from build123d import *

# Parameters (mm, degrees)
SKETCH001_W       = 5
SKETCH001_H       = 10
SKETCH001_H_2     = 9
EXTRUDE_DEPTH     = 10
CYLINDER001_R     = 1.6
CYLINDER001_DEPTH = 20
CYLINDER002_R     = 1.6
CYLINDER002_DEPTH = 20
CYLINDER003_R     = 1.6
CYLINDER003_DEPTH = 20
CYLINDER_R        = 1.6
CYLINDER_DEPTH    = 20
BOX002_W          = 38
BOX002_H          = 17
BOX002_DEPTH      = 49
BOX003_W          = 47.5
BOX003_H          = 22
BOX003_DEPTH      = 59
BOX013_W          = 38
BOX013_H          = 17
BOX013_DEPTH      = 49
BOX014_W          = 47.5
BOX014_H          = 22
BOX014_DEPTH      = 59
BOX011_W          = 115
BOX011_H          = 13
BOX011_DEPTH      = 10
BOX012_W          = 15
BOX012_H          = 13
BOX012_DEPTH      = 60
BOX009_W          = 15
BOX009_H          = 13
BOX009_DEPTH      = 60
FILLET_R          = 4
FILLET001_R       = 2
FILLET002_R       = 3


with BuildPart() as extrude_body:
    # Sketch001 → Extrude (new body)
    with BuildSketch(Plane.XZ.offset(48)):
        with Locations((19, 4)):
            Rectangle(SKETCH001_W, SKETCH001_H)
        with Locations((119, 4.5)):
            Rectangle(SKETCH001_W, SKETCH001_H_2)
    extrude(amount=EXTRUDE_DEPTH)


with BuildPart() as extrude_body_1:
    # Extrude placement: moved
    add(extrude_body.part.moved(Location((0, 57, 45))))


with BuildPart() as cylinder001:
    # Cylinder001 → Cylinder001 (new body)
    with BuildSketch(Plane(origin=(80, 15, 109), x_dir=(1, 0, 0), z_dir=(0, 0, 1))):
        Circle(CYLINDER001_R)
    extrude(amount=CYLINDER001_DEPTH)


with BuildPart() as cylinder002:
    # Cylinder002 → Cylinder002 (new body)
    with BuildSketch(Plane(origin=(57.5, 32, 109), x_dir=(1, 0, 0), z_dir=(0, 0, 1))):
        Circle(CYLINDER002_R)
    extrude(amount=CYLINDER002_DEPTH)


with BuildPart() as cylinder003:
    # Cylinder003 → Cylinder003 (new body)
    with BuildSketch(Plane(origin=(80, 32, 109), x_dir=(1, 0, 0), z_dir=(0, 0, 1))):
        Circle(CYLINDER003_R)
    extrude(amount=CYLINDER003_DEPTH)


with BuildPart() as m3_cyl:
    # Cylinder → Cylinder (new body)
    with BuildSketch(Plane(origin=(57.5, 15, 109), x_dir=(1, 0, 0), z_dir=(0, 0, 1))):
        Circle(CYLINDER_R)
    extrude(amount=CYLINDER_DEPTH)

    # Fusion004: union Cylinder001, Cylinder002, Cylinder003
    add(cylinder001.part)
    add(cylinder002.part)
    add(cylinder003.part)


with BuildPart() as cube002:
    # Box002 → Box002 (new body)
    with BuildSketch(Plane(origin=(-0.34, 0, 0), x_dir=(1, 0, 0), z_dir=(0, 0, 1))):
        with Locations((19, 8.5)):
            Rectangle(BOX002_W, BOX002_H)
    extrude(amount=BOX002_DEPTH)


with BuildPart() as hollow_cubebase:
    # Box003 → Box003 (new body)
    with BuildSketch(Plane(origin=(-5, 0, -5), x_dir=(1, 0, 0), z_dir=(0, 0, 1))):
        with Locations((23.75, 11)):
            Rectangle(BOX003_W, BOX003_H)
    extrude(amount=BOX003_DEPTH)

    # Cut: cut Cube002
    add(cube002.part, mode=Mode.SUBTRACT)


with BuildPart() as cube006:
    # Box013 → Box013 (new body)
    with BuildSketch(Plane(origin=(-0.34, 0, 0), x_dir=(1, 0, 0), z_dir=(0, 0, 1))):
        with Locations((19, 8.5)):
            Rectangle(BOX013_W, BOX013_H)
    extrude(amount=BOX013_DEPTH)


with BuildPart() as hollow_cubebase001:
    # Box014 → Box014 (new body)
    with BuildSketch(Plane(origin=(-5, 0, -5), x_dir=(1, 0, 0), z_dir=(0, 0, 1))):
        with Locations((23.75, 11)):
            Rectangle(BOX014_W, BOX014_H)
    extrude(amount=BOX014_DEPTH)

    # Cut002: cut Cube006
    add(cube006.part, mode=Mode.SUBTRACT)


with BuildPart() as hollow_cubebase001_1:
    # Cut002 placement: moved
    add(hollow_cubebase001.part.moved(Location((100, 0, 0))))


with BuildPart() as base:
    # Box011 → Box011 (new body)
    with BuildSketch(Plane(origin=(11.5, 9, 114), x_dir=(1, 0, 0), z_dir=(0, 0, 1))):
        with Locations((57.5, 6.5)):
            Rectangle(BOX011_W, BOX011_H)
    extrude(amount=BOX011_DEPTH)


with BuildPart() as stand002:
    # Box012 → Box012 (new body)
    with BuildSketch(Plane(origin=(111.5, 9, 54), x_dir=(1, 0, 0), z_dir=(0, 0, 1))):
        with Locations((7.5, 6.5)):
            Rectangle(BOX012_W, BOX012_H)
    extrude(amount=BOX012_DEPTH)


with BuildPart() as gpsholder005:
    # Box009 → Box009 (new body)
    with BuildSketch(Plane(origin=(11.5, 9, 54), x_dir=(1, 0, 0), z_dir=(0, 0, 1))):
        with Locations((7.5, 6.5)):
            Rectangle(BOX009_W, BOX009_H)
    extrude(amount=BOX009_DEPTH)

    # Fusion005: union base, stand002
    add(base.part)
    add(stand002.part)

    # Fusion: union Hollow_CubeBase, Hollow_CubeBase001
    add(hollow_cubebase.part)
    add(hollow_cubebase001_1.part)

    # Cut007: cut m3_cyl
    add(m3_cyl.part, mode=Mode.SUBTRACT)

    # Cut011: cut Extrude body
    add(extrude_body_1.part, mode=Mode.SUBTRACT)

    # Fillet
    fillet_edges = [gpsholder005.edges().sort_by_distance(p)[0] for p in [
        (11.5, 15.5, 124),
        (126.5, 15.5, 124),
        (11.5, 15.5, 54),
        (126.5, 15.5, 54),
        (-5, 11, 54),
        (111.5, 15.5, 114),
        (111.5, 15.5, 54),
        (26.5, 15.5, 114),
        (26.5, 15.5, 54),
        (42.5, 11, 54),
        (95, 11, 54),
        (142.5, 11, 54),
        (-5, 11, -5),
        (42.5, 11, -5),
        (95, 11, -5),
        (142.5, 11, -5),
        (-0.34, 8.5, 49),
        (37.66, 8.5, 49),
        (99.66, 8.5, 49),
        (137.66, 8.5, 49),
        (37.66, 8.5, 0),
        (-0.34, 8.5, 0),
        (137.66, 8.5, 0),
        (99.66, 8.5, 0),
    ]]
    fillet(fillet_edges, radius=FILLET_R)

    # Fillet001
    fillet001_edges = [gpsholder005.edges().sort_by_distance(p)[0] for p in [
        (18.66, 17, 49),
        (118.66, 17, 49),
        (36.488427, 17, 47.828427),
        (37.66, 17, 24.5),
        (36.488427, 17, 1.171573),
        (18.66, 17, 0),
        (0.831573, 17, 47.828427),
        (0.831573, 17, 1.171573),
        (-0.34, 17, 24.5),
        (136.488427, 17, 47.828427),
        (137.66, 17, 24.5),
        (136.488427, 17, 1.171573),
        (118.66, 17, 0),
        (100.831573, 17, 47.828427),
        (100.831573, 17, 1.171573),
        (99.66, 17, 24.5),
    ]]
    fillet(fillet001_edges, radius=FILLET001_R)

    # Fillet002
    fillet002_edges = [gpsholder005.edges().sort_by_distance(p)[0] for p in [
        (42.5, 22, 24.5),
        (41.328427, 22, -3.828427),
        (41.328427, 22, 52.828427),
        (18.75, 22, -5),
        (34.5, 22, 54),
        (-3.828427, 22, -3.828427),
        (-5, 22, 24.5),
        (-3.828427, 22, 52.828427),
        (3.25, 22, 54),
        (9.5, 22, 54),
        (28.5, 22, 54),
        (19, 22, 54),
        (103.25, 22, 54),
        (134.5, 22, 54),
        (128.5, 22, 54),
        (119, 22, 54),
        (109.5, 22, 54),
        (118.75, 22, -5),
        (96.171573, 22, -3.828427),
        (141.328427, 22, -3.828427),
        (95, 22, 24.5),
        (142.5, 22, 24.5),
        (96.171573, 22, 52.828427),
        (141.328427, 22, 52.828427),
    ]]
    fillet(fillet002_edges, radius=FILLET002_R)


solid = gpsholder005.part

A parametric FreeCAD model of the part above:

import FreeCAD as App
import Part
import Sketcher
from FreeCAD import Vector
Q = App.Units.Quantity


def edges_at(feature, points):
    """Names of the edges that pass closest to the given points."""
    edges = feature.Shape.Edges
    near = lambda p: min(range(len(edges)), key=lambda i: edges[i].distToShape(Part.Vertex(*p))[0])
    return sorted({f"Edge{near(p) + 1}" for p in points})

doc = App.newDocument("Part")
body = doc.addObject("PartDesign::Body", "Body")
body.AllowCompound = True

sketch1 = body.newObject("Sketcher::SketchObject", "Sketch")
sketch1.AttachmentSupport = (doc.getObject("XZ_Plane"), [""])
sketch1.MapMode = "FlatFace"
sketch1.AttachmentOffset = App.Placement(Vector(0, 0, 48), App.Rotation())
sketch1.addGeometry([
    Part.LineSegment(Vector(16.5, 9, 0), Vector(16.5, -1, 0)),
    Part.LineSegment(Vector(16.5, -1, 0), Vector(21.5, -1, 0)),
    Part.LineSegment(Vector(21.5, -1, 0), Vector(21.5, 9, 0)),
    Part.LineSegment(Vector(21.5, 9, 0), Vector(16.5, 9, 0)),
    Part.LineSegment(Vector(116.5, 9, 0), Vector(116.5, 0, 0)),
    Part.LineSegment(Vector(116.5, 0, 0), Vector(121.5, 0, 0)),
    Part.LineSegment(Vector(121.5, 0, 0), Vector(121.5, 9, 0)),
    Part.LineSegment(Vector(121.5, 9, 0), Vector(116.5, 9, 0)),
], False)
sketch1.addConstraint([
    Sketcher.Constraint("Coincident", 0, 2, 1, 1),
    Sketcher.Constraint("Coincident", 1, 2, 2, 1),
    Sketcher.Constraint("Coincident", 2, 2, 3, 1),
    Sketcher.Constraint("Coincident", 3, 2, 0, 1),
    Sketcher.Constraint("Coincident", 4, 2, 5, 1),
    Sketcher.Constraint("Coincident", 5, 2, 6, 1),
    Sketcher.Constraint("Coincident", 6, 2, 7, 1),
    Sketcher.Constraint("Coincident", 7, 2, 4, 1),
    Sketcher.Constraint("Vertical", 0),
    Sketcher.Constraint("Horizontal", 1),
    Sketcher.Constraint("Vertical", 2),
    Sketcher.Constraint("Horizontal", 3),
    Sketcher.Constraint("Vertical", 4),
    Sketcher.Constraint("Horizontal", 5),
    Sketcher.Constraint("Vertical", 6),
    Sketcher.Constraint("Horizontal", 7),
    Sketcher.Constraint("PointOnObject", 4, 2, -1),
    Sketcher.Constraint("Horizontal", 3, 2, 6, 2),
    Sketcher.Constraint("Equal", 3, 5),
    Sketcher.Constraint("DistanceX", 1, 1, 1, 2, Q("5 mm")),
    Sketcher.Constraint("DistanceY", 0, 2, 0, 1, Q("10 mm")),
    Sketcher.Constraint("DistanceY", 4, 2, 4, 1, Q("9 mm")),
    Sketcher.Constraint("DistanceX", 1, 2, 4, 2, Q("95 mm")),
    Sketcher.Constraint("DistanceX", -1, 1, 0, 2, Q("16.5 mm")),
])
pad1 = body.newObject("PartDesign::Pad", "Pad")
pad1.Profile = sketch1
pad1.Length = 10
body2 = doc.addObject("PartDesign::Body", "Body001")
body2.AllowCompound = True
doc.recompute()

body.Placement = App.Placement(Vector(0, 57, 45), App.Rotation(Vector(0, 0, 1), 0))
boolean = body2.newObject("PartDesign::Boolean", "Boolean")
boolean.Type = "Fuse"
boolean.addObjects([body])
body3 = doc.addObject("PartDesign::Body", "Body002")

sketch2 = body3.newObject("Sketcher::SketchObject", "Sketch001")
sketch2.AttachmentSupport = (doc.getObject("XY_Plane002"), [""])
sketch2.MapMode = "FlatFace"
sketch2.AttachmentOffset = App.Placement(Vector(0, 0, 109), App.Rotation())
sketch2.addGeometry(Part.Circle(Vector(80, 15, 0), Vector(0, 0, 1), 1.6), False)
sketch2.addConstraint([
    Sketcher.Constraint("Diameter", 0, Q("3.2 mm")),
    Sketcher.Constraint("DistanceX", -1, 1, 0, 3, Q("80 mm")),
    Sketcher.Constraint("DistanceY", -1, 1, 0, 3, Q("15 mm")),
])
pad2 = body3.newObject("PartDesign::Pad", "Pad001")
pad2.Profile = sketch2
pad2.Length = 20
body4 = doc.addObject("PartDesign::Body", "Body003")

sketch3 = body4.newObject("Sketcher::SketchObject", "Sketch002")
sketch3.AttachmentSupport = (doc.getObject("XY_Plane003"), [""])
sketch3.MapMode = "FlatFace"
sketch3.AttachmentOffset = App.Placement(Vector(0, 0, 109), App.Rotation())
sketch3.addGeometry(Part.Circle(Vector(57.5, 32, 0), Vector(0, 0, 1), 1.6), False)
sketch3.addConstraint([
    Sketcher.Constraint("Diameter", 0, Q("3.2 mm")),
    Sketcher.Constraint("DistanceY", -1, 1, 0, 3, Q("32 mm")),
    Sketcher.Constraint("DistanceX", -1, 1, 0, 3, Q("57.5 mm")),
])
pad3 = body4.newObject("PartDesign::Pad", "Pad002")
pad3.Profile = sketch3
pad3.Length = 20
body5 = doc.addObject("PartDesign::Body", "Body004")

sketch4 = body5.newObject("Sketcher::SketchObject", "Sketch003")
sketch4.AttachmentSupport = (doc.getObject("XY_Plane004"), [""])
sketch4.MapMode = "FlatFace"
sketch4.AttachmentOffset = App.Placement(Vector(0, 0, 109), App.Rotation())
sketch4.addGeometry(Part.Circle(Vector(80, 32, 0), Vector(0, 0, 1), 1.6), False)
sketch4.addConstraint([
    Sketcher.Constraint("Diameter", 0, Q("3.2 mm")),
    Sketcher.Constraint("DistanceX", -1, 1, 0, 3, Q("80 mm")),
    Sketcher.Constraint("DistanceY", -1, 1, 0, 3, Q("32 mm")),
])
pad4 = body5.newObject("PartDesign::Pad", "Pad003")
pad4.Profile = sketch4
pad4.Length = 20
body6 = doc.addObject("PartDesign::Body", "Body005")
body6.AllowCompound = True

sketch5 = body6.newObject("Sketcher::SketchObject", "Sketch004")
sketch5.AttachmentSupport = (doc.getObject("XY_Plane005"), [""])
sketch5.MapMode = "FlatFace"
sketch5.AttachmentOffset = App.Placement(Vector(0, 0, 109), App.Rotation())
sketch5.addGeometry(Part.Circle(Vector(57.5, 15, 0), Vector(0, 0, 1), 1.6), False)
sketch5.addConstraint([
    Sketcher.Constraint("Diameter", 0, Q("3.2 mm")),
    Sketcher.Constraint("DistanceY", -1, 1, 0, 3, Q("15 mm")),
    Sketcher.Constraint("DistanceX", -1, 1, 0, 3, Q("57.5 mm")),
])
pad5 = body6.newObject("PartDesign::Pad", "Pad004")
pad5.Profile = sketch5
pad5.Length = 20
doc.recompute()

boolean2 = body6.newObject("PartDesign::Boolean", "Boolean001")
boolean2.Type = "Fuse"
boolean2.addObjects([body3])
doc.recompute()

boolean3 = body6.newObject("PartDesign::Boolean", "Boolean002")
boolean3.Type = "Fuse"
boolean3.addObjects([body4])
doc.recompute()

boolean4 = body6.newObject("PartDesign::Boolean", "Boolean003")
boolean4.Type = "Fuse"
boolean4.addObjects([body5])
body7 = doc.addObject("PartDesign::Body", "Body006")

sketch6 = body7.newObject("Sketcher::SketchObject", "Sketch005")
sketch6.AttachmentSupport = (doc.getObject("XY_Plane006"), [""])
sketch6.MapMode = "FlatFace"
sketch6.addGeometry([
    Part.LineSegment(Vector(-0.34, 17, 0), Vector(-0.34, 0, 0)),
    Part.LineSegment(Vector(-0.34, 0, 0), Vector(37.66, 0, 0)),
    Part.LineSegment(Vector(37.66, 0, 0), Vector(37.66, 17, 0)),
    Part.LineSegment(Vector(37.66, 17, 0), Vector(-0.34, 17, 0)),
], False)
sketch6.addConstraint([
    Sketcher.Constraint("Coincident", 0, 2, 1, 1),
    Sketcher.Constraint("Coincident", 1, 2, 2, 1),
    Sketcher.Constraint("Coincident", 2, 2, 3, 1),
    Sketcher.Constraint("Coincident", 3, 2, 0, 1),
    Sketcher.Constraint("Vertical", 0),
    Sketcher.Constraint("Horizontal", 1),
    Sketcher.Constraint("Vertical", 2),
    Sketcher.Constraint("Horizontal", 3),
    Sketcher.Constraint("PointOnObject", 0, 2, -1),
    Sketcher.Constraint("DistanceX", 1, 1, 1, 2, Q("38 mm")),
    Sketcher.Constraint("DistanceY", 0, 2, 0, 1, Q("17 mm")),
    Sketcher.Constraint("DistanceX", 0, 2, -1, 1, Q("0.34 mm")),
])
pad6 = body7.newObject("PartDesign::Pad", "Pad005")
pad6.Profile = sketch6
pad6.Length = 49
body8 = doc.addObject("PartDesign::Body", "Body007")

sketch7 = body8.newObject("Sketcher::SketchObject", "Sketch006")
sketch7.AttachmentSupport = (doc.getObject("XY_Plane007"), [""])
sketch7.MapMode = "FlatFace"
sketch7.AttachmentOffset = App.Placement(Vector(0, 0, -5), App.Rotation())
sketch7.addGeometry([
    Part.LineSegment(Vector(-5, 22, 0), Vector(-5, 0, 0)),
    Part.LineSegment(Vector(-5, 0, 0), Vector(42.5, 0, 0)),
    Part.LineSegment(Vector(42.5, 0, 0), Vector(42.5, 22, 0)),
    Part.LineSegment(Vector(42.5, 22, 0), Vector(-5, 22, 0)),
], False)
sketch7.addConstraint([
    Sketcher.Constraint("Coincident", 0, 2, 1, 1),
    Sketcher.Constraint("Coincident", 1, 2, 2, 1),
    Sketcher.Constraint("Coincident", 2, 2, 3, 1),
    Sketcher.Constraint("Coincident", 3, 2, 0, 1),
    Sketcher.Constraint("Vertical", 0),
    Sketcher.Constraint("Horizontal", 1),
    Sketcher.Constraint("Vertical", 2),
    Sketcher.Constraint("Horizontal", 3),
    Sketcher.Constraint("PointOnObject", 0, 2, -1),
    Sketcher.Constraint("DistanceY", 0, 2, 0, 1, Q("22 mm")),
    Sketcher.Constraint("DistanceX", 1, 1, 1, 2, Q("47.5 mm")),
    Sketcher.Constraint("DistanceX", 0, 2, -1, 1, Q("5 mm")),
])
pad7 = body8.newObject("PartDesign::Pad", "Pad006")
pad7.Profile = sketch7
pad7.Length = 59
doc.recompute()

boolean5 = body8.newObject("PartDesign::Boolean", "Boolean004")
boolean5.Type = "Cut"
boolean5.addObjects([body7])
body9 = doc.addObject("PartDesign::Body", "Body008")

sketch8 = body9.newObject("Sketcher::SketchObject", "Sketch007")
sketch8.AttachmentSupport = (doc.getObject("XY_Plane008"), [""])
sketch8.MapMode = "FlatFace"
sketch8.addGeometry([
    Part.LineSegment(Vector(-0.34, 17, 0), Vector(-0.34, 0, 0)),
    Part.LineSegment(Vector(-0.34, 0, 0), Vector(37.66, 0, 0)),
    Part.LineSegment(Vector(37.66, 0, 0), Vector(37.66, 17, 0)),
    Part.LineSegment(Vector(37.66, 17, 0), Vector(-0.34, 17, 0)),
], False)
sketch8.addConstraint([
    Sketcher.Constraint("Coincident", 0, 2, 1, 1),
    Sketcher.Constraint("Coincident", 1, 2, 2, 1),
    Sketcher.Constraint("Coincident", 2, 2, 3, 1),
    Sketcher.Constraint("Coincident", 3, 2, 0, 1),
    Sketcher.Constraint("Vertical", 0),
    Sketcher.Constraint("Horizontal", 1),
    Sketcher.Constraint("Vertical", 2),
    Sketcher.Constraint("Horizontal", 3),
    Sketcher.Constraint("PointOnObject", 0, 2, -1),
    Sketcher.Constraint("DistanceX", 1, 1, 1, 2, Q("38 mm")),
    Sketcher.Constraint("DistanceY", 0, 2, 0, 1, Q("17 mm")),
    Sketcher.Constraint("DistanceX", 0, 2, -1, 1, Q("0.34 mm")),
])
pad8 = body9.newObject("PartDesign::Pad", "Pad007")
pad8.Profile = sketch8
pad8.Length = 49
body10 = doc.addObject("PartDesign::Body", "Body009")

sketch9 = body10.newObject("Sketcher::SketchObject", "Sketch008")
sketch9.AttachmentSupport = (doc.getObject("XY_Plane009"), [""])
sketch9.MapMode = "FlatFace"
sketch9.AttachmentOffset = App.Placement(Vector(0, 0, -5), App.Rotation())
sketch9.addGeometry([
    Part.LineSegment(Vector(-5, 22, 0), Vector(-5, 0, 0)),
    Part.LineSegment(Vector(-5, 0, 0), Vector(42.5, 0, 0)),
    Part.LineSegment(Vector(42.5, 0, 0), Vector(42.5, 22, 0)),
    Part.LineSegment(Vector(42.5, 22, 0), Vector(-5, 22, 0)),
], False)
sketch9.addConstraint([
    Sketcher.Constraint("Coincident", 0, 2, 1, 1),
    Sketcher.Constraint("Coincident", 1, 2, 2, 1),
    Sketcher.Constraint("Coincident", 2, 2, 3, 1),
    Sketcher.Constraint("Coincident", 3, 2, 0, 1),
    Sketcher.Constraint("Vertical", 0),
    Sketcher.Constraint("Horizontal", 1),
    Sketcher.Constraint("Vertical", 2),
    Sketcher.Constraint("Horizontal", 3),
    Sketcher.Constraint("PointOnObject", 0, 2, -1),
    Sketcher.Constraint("DistanceY", 0, 2, 0, 1, Q("22 mm")),
    Sketcher.Constraint("DistanceX", 1, 1, 1, 2, Q("47.5 mm")),
    Sketcher.Constraint("DistanceX", 0, 2, -1, 1, Q("5 mm")),
])
pad9 = body10.newObject("PartDesign::Pad", "Pad008")
pad9.Profile = sketch9
pad9.Length = 59
doc.recompute()

boolean6 = body10.newObject("PartDesign::Boolean", "Boolean005")
boolean6.Type = "Cut"
boolean6.addObjects([body9])
body11 = doc.addObject("PartDesign::Body", "Body010")
doc.recompute()

body10.Placement = App.Placement(Vector(100, 0, 0), App.Rotation(Vector(0, 0, 1), 0))
boolean7 = body11.newObject("PartDesign::Boolean", "Boolean006")
boolean7.Type = "Fuse"
boolean7.addObjects([body10])
body12 = doc.addObject("PartDesign::Body", "Body011")

sketch10 = body12.newObject("Sketcher::SketchObject", "Sketch009")
sketch10.AttachmentSupport = (doc.getObject("XY_Plane011"), [""])
sketch10.MapMode = "FlatFace"
sketch10.AttachmentOffset = App.Placement(Vector(0, 0, 114), App.Rotation())
sketch10.addGeometry([
    Part.LineSegment(Vector(11.5, 22, 0), Vector(11.5, 9, 0)),
    Part.LineSegment(Vector(11.5, 9, 0), Vector(126.5, 9, 0)),
    Part.LineSegment(Vector(126.5, 9, 0), Vector(126.5, 22, 0)),
    Part.LineSegment(Vector(126.5, 22, 0), Vector(11.5, 22, 0)),
], False)
sketch10.addConstraint([
    Sketcher.Constraint("Coincident", 0, 2, 1, 1),
    Sketcher.Constraint("Coincident", 1, 2, 2, 1),
    Sketcher.Constraint("Coincident", 2, 2, 3, 1),
    Sketcher.Constraint("Coincident", 3, 2, 0, 1),
    Sketcher.Constraint("Vertical", 0),
    Sketcher.Constraint("Horizontal", 1),
    Sketcher.Constraint("Vertical", 2),
    Sketcher.Constraint("Horizontal", 3),
    Sketcher.Constraint("DistanceX", 1, 1, 1, 2, Q("115 mm")),
    Sketcher.Constraint("DistanceY", 0, 2, 0, 1, Q("13 mm")),
    Sketcher.Constraint("DistanceY", -1, 1, 0, 2, Q("9 mm")),
    Sketcher.Constraint("DistanceX", -1, 1, 0, 2, Q("11.5 mm")),
])
pad10 = body12.newObject("PartDesign::Pad", "Pad009")
pad10.Profile = sketch10
pad10.Length = 10
body13 = doc.addObject("PartDesign::Body", "Body012")

sketch11 = body13.newObject("Sketcher::SketchObject", "Sketch010")
sketch11.AttachmentSupport = (doc.getObject("XY_Plane012"), [""])
sketch11.MapMode = "FlatFace"
sketch11.AttachmentOffset = App.Placement(Vector(0, 0, 54), App.Rotation())
sketch11.addGeometry([
    Part.LineSegment(Vector(111.5, 22, 0), Vector(111.5, 9, 0)),
    Part.LineSegment(Vector(111.5, 9, 0), Vector(126.5, 9, 0)),
    Part.LineSegment(Vector(126.5, 9, 0), Vector(126.5, 22, 0)),
    Part.LineSegment(Vector(126.5, 22, 0), Vector(111.5, 22, 0)),
], False)
sketch11.addConstraint([
    Sketcher.Constraint("Coincident", 0, 2, 1, 1),
    Sketcher.Constraint("Coincident", 1, 2, 2, 1),
    Sketcher.Constraint("Coincident", 2, 2, 3, 1),
    Sketcher.Constraint("Coincident", 3, 2, 0, 1),
    Sketcher.Constraint("Vertical", 0),
    Sketcher.Constraint("Horizontal", 1),
    Sketcher.Constraint("Vertical", 2),
    Sketcher.Constraint("Horizontal", 3),
    Sketcher.Constraint("DistanceX", 1, 1, 1, 2, Q("15 mm")),
    Sketcher.Constraint("DistanceY", 0, 2, 0, 1, Q("13 mm")),
    Sketcher.Constraint("DistanceY", -1, 1, 0, 2, Q("9 mm")),
    Sketcher.Constraint("DistanceX", -1, 1, 0, 2, Q("111.5 mm")),
])
pad11 = body13.newObject("PartDesign::Pad", "Pad010")
pad11.Profile = sketch11
pad11.Length = 60
body14 = doc.addObject("PartDesign::Body", "Body013")

sketch12 = body14.newObject("Sketcher::SketchObject", "Sketch011")
sketch12.AttachmentSupport = (doc.getObject("XY_Plane013"), [""])
sketch12.MapMode = "FlatFace"
sketch12.AttachmentOffset = App.Placement(Vector(0, 0, 54), App.Rotation())
sketch12.addGeometry([
    Part.LineSegment(Vector(11.5, 22, 0), Vector(11.5, 9, 0)),
    Part.LineSegment(Vector(11.5, 9, 0), Vector(26.5, 9, 0)),
    Part.LineSegment(Vector(26.5, 9, 0), Vector(26.5, 22, 0)),
    Part.LineSegment(Vector(26.5, 22, 0), Vector(11.5, 22, 0)),
], False)
sketch12.addConstraint([
    Sketcher.Constraint("Coincident", 0, 2, 1, 1),
    Sketcher.Constraint("Coincident", 1, 2, 2, 1),
    Sketcher.Constraint("Coincident", 2, 2, 3, 1),
    Sketcher.Constraint("Coincident", 3, 2, 0, 1),
    Sketcher.Constraint("Vertical", 0),
    Sketcher.Constraint("Horizontal", 1),
    Sketcher.Constraint("Vertical", 2),
    Sketcher.Constraint("Horizontal", 3),
    Sketcher.Constraint("DistanceX", 1, 1, 1, 2, Q("15 mm")),
    Sketcher.Constraint("DistanceY", 0, 2, 0, 1, Q("13 mm")),
    Sketcher.Constraint("DistanceY", -1, 1, 0, 2, Q("9 mm")),
    Sketcher.Constraint("DistanceX", -1, 1, 0, 2, Q("11.5 mm")),
])
pad12 = body14.newObject("PartDesign::Pad", "Pad011")
pad12.Profile = sketch12
pad12.Length = 60
doc.recompute()

boolean8 = body14.newObject("PartDesign::Boolean", "Boolean007")
boolean8.Type = "Fuse"
boolean8.addObjects([body12])
doc.recompute()

boolean9 = body14.newObject("PartDesign::Boolean", "Boolean008")
boolean9.Type = "Fuse"
boolean9.addObjects([body13])
doc.recompute()

boolean10 = body14.newObject("PartDesign::Boolean", "Boolean009")
boolean10.Type = "Fuse"
boolean10.addObjects([body8])
doc.recompute()

boolean11 = body14.newObject("PartDesign::Boolean", "Boolean010")
boolean11.Type = "Fuse"
boolean11.addObjects([body11])
doc.recompute()

boolean12 = body14.newObject("PartDesign::Boolean", "Boolean011")
boolean12.Type = "Cut"
boolean12.addObjects([body6])
doc.recompute()

boolean13 = body14.newObject("PartDesign::Boolean", "Boolean012")
boolean13.Type = "Cut"
boolean13.addObjects([body2])
doc.recompute()

fillet = body14.newObject("PartDesign::Fillet", "Fillet")
fillet.Base = (boolean13, edges_at(boolean13, [
    (11.5, 15.5, 124),
    (126.5, 15.5, 124),
    (11.5, 15.5, 54),
    (126.5, 15.5, 54),
    (-5, 11, 54),
    (111.5, 15.5, 114),
    (111.5, 15.5, 54),
    (26.5, 15.5, 114),
    (26.5, 15.5, 54),
    (42.5, 11, 54),
    (95, 11, 54),
    (142.5, 11, 54),
    (-5, 11, -5),
    (42.5, 11, -5),
    (95, 11, -5),
    (142.5, 11, -5),
    (-0.34, 8.5, 49),
    (37.66, 8.5, 49),
    (99.66, 8.5, 49),
    (137.66, 8.5, 49),
    (37.66, 8.5, 0),
    (-0.34, 8.5, 0),
    (137.66, 8.5, 0),
    (99.66, 8.5, 0),
]))
fillet.Radius = 4
doc.recompute()

fillet2 = body14.newObject("PartDesign::Fillet", "Fillet001")
fillet2.Base = (fillet, edges_at(fillet, [
    (18.66, 17, 49),
    (118.66, 17, 49),
    (36.488, 17, 47.828),
    (37.66, 17, 24.5),
    (36.488, 17, 1.172),
    (18.66, 17, 0),
    (0.832, 17, 47.828),
    (0.832, 17, 1.172),
    (-0.34, 17, 24.5),
    (136.488, 17, 47.828),
    (137.66, 17, 24.5),
    (136.488, 17, 1.172),
    (118.66, 17, 0),
    (100.832, 17, 47.828),
    (100.832, 17, 1.172),
    (99.66, 17, 24.5),
]))
fillet2.Radius = 2
doc.recompute()

fillet3 = body14.newObject("PartDesign::Fillet", "Fillet002")
fillet3.Base = (fillet2, edges_at(fillet2, [
    (42.5, 22, 24.5),
    (41.328, 22, -3.828),
    (41.328, 22, 52.828),
    (18.75, 22, -5),
    (34.5, 22, 54),
    (-3.828, 22, -3.828),
    (-5, 22, 24.5),
    (-3.828, 22, 52.828),
    (3.25, 22, 54),
    (10.328, 22, 55.172),
    (27.672, 22, 55.172),
    (10.328, 22, 55.172),
    (103.25, 22, 54),
    (134.5, 22, 54),
    (127.672, 22, 55.172),
    (110.328, 22, 55.172),
    (110.328, 22, 55.172),
    (118.75, 22, -5),
    (96.172, 22, -3.828),
    (141.328, 22, -3.828),
    (95, 22, 24.5),
    (142.5, 22, 24.5),
    (96.172, 22, 52.828),
    (141.328, 22, 52.828),
]))
fillet3.Radius = 3

doc.recompute()
